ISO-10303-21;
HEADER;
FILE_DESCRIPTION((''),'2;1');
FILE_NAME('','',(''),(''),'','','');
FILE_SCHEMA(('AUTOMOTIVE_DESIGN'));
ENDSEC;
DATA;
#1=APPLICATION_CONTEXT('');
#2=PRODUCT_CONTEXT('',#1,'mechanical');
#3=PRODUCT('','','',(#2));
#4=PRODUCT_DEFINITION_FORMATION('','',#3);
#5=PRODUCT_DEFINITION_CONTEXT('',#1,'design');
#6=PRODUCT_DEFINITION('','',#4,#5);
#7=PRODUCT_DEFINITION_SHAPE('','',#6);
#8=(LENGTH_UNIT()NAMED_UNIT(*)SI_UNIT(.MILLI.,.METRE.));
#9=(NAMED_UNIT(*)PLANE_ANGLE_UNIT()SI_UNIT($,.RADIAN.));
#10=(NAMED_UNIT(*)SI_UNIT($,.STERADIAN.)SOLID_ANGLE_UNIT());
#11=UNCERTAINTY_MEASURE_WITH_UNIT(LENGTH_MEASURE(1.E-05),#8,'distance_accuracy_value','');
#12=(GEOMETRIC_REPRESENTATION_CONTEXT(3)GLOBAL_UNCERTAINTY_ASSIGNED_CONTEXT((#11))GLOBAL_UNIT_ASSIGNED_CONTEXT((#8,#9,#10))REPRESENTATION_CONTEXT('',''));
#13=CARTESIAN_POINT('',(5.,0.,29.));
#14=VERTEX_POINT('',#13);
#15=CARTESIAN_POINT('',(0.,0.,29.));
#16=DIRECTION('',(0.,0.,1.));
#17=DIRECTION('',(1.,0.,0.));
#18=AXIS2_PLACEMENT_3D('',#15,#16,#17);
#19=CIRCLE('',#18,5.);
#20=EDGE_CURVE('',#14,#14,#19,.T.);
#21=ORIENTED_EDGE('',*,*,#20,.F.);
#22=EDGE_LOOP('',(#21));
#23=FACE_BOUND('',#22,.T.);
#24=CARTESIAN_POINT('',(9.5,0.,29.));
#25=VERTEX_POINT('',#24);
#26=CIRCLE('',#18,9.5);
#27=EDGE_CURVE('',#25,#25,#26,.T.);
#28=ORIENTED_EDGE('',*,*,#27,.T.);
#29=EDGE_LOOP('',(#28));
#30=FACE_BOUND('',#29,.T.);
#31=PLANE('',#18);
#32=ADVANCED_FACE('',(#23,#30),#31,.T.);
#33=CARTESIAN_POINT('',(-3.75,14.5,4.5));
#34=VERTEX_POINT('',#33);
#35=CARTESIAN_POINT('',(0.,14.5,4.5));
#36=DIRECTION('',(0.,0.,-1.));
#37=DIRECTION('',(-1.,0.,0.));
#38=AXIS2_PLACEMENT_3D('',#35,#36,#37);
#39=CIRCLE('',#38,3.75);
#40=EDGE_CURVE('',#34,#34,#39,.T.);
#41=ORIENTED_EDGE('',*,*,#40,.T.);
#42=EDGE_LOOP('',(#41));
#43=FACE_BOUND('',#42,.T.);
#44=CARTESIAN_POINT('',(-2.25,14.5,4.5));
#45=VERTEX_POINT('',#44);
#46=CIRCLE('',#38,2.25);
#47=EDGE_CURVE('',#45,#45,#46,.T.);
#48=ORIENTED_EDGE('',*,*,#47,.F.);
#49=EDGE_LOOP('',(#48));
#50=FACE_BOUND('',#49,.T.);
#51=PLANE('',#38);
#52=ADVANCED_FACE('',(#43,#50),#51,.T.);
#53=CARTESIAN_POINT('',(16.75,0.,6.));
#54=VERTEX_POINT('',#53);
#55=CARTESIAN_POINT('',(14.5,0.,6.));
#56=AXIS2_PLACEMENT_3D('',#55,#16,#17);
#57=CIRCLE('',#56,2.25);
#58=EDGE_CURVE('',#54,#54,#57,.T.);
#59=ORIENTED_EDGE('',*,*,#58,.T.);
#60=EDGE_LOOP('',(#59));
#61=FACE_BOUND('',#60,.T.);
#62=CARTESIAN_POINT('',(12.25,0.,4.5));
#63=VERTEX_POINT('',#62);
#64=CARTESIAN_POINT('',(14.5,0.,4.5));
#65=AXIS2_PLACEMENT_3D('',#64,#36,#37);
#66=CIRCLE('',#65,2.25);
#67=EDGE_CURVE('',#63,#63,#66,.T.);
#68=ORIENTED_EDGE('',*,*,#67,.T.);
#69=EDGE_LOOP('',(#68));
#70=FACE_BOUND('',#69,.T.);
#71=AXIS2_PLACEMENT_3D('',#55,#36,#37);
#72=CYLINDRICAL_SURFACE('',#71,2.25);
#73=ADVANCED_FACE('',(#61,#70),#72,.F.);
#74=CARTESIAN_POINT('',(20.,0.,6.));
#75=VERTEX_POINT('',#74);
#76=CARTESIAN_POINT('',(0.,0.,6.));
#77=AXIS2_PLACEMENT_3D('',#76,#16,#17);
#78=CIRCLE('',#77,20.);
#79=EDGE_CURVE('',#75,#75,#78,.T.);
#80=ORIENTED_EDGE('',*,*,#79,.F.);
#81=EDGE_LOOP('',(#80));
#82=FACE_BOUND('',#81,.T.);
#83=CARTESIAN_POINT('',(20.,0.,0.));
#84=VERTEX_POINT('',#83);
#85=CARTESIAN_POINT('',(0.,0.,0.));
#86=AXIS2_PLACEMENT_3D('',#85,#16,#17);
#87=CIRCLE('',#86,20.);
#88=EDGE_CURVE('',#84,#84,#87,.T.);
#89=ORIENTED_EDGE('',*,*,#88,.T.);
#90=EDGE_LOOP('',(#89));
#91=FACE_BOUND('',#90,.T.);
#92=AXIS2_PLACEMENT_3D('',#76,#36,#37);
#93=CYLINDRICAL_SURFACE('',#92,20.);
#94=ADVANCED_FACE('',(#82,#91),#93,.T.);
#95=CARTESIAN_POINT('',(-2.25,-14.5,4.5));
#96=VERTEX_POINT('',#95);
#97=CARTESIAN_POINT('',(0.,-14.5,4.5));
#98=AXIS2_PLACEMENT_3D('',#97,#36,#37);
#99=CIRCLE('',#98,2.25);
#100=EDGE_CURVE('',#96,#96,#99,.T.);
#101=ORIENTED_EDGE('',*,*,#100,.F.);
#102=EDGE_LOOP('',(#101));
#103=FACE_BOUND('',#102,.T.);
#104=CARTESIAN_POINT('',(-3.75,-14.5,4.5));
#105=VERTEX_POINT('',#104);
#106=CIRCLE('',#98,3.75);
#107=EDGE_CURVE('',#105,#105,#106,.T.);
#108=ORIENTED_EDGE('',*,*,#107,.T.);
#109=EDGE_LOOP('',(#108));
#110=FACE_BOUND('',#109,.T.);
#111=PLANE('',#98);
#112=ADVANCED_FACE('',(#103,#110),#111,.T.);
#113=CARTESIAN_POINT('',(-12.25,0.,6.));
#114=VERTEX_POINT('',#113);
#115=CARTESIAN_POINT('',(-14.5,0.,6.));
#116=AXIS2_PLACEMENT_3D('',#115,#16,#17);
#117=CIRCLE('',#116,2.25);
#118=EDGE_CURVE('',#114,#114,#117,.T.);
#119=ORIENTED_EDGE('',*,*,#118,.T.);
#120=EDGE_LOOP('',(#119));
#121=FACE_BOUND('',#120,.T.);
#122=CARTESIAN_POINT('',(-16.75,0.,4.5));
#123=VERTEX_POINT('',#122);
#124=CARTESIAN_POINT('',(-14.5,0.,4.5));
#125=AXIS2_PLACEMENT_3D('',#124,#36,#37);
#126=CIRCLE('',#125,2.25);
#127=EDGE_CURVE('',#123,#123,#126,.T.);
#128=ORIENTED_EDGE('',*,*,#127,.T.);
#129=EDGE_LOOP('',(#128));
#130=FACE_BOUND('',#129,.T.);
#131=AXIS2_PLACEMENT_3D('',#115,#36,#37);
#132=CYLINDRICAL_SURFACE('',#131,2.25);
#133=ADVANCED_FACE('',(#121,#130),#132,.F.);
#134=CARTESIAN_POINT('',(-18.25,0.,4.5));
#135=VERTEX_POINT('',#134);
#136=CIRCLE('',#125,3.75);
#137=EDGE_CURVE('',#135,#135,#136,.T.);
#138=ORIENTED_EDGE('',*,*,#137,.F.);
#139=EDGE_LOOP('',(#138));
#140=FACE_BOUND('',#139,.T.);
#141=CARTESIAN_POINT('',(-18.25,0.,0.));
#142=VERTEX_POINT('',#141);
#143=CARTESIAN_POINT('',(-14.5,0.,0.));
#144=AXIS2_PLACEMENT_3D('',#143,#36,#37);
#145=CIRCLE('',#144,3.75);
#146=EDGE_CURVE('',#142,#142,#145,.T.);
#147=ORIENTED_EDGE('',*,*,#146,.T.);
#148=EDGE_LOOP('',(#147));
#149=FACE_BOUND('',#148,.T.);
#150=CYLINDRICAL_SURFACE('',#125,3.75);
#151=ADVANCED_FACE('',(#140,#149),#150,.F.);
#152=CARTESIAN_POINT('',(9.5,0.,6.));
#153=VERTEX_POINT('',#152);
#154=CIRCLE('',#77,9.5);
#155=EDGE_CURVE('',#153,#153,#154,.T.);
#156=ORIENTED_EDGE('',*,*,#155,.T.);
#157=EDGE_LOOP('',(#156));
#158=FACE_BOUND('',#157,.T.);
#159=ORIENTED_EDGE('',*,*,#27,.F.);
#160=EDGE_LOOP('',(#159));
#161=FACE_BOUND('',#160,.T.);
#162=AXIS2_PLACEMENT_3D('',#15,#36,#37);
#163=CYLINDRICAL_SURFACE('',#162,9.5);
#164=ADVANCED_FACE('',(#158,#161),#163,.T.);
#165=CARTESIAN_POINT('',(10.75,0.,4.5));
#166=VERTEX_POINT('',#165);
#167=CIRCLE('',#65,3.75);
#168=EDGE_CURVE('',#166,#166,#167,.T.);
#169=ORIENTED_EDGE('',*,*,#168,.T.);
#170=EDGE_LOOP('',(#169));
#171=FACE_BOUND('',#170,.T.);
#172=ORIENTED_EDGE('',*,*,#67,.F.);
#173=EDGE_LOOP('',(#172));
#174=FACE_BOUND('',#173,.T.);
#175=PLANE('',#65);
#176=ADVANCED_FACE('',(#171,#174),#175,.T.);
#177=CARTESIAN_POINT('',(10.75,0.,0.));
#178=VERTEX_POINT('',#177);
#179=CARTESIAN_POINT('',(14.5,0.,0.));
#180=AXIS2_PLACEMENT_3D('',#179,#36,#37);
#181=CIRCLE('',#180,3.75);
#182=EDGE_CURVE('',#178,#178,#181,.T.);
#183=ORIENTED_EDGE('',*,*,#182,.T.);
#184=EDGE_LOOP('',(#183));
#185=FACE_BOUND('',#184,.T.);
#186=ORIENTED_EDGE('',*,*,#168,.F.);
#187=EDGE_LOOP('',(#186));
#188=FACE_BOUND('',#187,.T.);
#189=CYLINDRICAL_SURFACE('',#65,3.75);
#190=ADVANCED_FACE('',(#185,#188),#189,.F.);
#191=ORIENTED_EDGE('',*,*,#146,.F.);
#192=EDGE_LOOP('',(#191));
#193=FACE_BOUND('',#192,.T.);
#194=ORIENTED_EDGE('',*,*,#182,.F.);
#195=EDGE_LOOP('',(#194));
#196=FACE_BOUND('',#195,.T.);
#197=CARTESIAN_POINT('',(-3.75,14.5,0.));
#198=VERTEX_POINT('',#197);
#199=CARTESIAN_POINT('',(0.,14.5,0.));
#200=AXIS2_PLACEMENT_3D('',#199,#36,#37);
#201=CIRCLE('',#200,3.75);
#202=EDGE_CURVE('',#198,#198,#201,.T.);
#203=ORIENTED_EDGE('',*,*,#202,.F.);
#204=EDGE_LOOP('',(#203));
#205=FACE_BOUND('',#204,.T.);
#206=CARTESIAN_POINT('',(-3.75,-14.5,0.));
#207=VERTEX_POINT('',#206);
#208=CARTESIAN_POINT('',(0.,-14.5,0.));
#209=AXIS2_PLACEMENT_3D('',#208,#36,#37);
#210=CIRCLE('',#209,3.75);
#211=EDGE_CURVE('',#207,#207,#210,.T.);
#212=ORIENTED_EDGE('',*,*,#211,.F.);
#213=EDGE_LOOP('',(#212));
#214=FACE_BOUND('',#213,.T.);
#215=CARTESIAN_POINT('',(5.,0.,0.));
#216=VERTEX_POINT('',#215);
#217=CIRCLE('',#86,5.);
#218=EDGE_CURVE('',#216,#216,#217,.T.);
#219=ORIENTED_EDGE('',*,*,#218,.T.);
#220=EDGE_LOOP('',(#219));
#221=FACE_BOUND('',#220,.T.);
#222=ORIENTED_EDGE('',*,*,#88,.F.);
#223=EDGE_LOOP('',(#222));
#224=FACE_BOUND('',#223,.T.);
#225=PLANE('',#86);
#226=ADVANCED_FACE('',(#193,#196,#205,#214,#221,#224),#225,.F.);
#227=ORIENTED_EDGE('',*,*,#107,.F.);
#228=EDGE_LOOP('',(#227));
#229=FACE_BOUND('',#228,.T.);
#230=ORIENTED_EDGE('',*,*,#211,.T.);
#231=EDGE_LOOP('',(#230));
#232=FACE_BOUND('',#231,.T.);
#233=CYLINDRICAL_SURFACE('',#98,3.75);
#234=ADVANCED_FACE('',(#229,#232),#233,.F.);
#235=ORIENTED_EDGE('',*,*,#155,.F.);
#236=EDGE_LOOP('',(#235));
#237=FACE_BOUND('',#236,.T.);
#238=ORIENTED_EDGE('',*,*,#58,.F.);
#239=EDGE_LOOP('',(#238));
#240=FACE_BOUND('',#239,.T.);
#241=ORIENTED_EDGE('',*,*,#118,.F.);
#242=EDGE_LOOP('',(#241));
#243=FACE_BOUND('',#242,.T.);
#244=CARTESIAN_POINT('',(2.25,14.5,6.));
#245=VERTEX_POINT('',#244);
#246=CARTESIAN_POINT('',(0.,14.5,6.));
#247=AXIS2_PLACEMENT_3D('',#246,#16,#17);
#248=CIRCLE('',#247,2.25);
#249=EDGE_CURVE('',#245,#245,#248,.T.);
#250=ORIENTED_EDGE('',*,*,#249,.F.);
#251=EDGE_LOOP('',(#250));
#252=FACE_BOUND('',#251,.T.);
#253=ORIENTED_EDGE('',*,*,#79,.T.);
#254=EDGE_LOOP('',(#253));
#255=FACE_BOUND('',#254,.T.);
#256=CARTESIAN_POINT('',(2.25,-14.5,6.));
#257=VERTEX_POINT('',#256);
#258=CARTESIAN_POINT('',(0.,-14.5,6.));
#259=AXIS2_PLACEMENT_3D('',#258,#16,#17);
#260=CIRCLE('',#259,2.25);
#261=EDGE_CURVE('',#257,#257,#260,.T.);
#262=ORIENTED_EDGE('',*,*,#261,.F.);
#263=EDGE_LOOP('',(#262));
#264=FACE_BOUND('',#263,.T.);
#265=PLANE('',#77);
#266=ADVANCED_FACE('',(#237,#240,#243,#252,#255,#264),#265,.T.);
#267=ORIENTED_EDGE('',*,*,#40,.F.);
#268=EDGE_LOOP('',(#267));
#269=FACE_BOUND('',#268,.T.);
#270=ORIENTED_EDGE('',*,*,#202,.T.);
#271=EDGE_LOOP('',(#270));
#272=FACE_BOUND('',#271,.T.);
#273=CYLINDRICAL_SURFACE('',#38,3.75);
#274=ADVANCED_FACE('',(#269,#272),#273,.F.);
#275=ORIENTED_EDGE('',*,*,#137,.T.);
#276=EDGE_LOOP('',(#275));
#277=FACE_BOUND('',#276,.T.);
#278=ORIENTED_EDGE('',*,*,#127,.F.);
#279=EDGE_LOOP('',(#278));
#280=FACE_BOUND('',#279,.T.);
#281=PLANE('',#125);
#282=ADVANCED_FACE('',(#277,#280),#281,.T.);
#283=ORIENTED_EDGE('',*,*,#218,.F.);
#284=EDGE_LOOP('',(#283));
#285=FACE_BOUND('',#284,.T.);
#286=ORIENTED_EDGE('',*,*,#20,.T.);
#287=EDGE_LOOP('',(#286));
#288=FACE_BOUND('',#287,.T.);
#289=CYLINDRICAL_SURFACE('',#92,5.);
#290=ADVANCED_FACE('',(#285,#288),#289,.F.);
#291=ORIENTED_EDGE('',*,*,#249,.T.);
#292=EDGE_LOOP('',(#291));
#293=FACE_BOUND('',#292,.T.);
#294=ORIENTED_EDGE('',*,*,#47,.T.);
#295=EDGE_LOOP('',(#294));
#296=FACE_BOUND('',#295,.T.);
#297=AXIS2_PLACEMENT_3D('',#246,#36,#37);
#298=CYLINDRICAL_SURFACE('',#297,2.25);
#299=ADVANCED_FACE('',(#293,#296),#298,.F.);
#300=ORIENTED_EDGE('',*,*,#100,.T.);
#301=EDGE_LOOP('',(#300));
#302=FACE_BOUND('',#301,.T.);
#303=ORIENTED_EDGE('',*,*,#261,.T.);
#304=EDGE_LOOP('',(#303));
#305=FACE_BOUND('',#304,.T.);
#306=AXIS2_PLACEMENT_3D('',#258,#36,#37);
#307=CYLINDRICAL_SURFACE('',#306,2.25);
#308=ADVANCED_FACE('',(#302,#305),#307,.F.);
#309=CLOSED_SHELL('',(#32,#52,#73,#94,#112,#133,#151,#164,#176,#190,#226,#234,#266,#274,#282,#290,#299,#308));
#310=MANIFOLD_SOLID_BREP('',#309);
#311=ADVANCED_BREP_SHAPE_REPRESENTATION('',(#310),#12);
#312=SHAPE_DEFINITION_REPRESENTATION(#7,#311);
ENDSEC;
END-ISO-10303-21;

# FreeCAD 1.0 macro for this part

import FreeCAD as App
import Part
import Sketcher

doc = App.newDocument("Part")
params = doc.addObject("Spreadsheet::Sheet", "Params")
for row, (alias, value) in enumerate([
    ("sketch1_diameter", "40 mm"),
    ("sketch1_diameter2", "10 mm"),
    ("sketch1_diameter3", "4.5 mm"),
    ("pad1_length", "6 mm"),
    ("sketch2_diameter", "19 mm"),
    ("sketch2_diameter2", "10 mm"),
    ("pad2_length", "23 mm"),
    ("sketch3_diameter", "7.5 mm"),
    ("pocket1_length", "4.5 mm"),
], start=1):
    params.set(f"A{row}", alias)
    params.set(f"B{row}", "=" + value)
    params.setAlias(f"B{row}", alias)

body = doc.addObject("PartDesign::Body", "Body")

# Sketch on XY plane
sketch1 = doc.addObject("Sketcher::SketchObject", "Sketch")
body.addObject(sketch1)
sketch1.AttachmentSupport = (doc.XY_Plane, [""])
sketch1.MapMode = "FlatFace"
sketch1.addGeometry(Part.Circle(App.Vector(0, 0, 0), App.Vector(0, 0, 1), 20), False)
sketch1.addGeometry(Part.Circle(App.Vector(0, -14.5, 0), App.Vector(0, 0, 1), 2.2), False)
sketch1.addGeometry(Part.Circle(App.Vector(-14.5, 0, 0), App.Vector(0, 0, 1), 2.2), False)
sketch1.addGeometry(Part.Circle(App.Vector(0, 0, 0), App.Vector(0, 0, 1), 5), False)
sketch1.addGeometry(Part.Circle(App.Vector(14.5, 0, 0), App.Vector(0, 0, 1), 2.2), False)
sketch1.addGeometry(Part.Circle(App.Vector(0, 14.5, 0), App.Vector(0, 0, 1), 2.2), False)
sketch1.addConstraint(Sketcher.Constraint("Coincident", 0, 3, -1, 1))
sketch1.addConstraint(Sketcher.Constraint("Coincident", 3, 3, -1, 1))
sketch1.addConstraint(Sketcher.Constraint("Equal", 1, 2))
sketch1.addConstraint(Sketcher.Constraint("Equal", 2, 4))
sketch1.addConstraint(Sketcher.Constraint("Equal", 4, 5))
sketch1.addConstraint(Sketcher.Constraint("Symmetric", 2, 3, 4, 3, -1, 1))
sketch1.addConstraint(Sketcher.Constraint("Symmetric", 1, 3, 5, 3, -1, 1))
sketch1.addConstraint(Sketcher.Constraint("PointOnObject", 1, 3, -2))
sketch1.addConstraint(Sketcher.Constraint("PointOnObject", 2, 3, -1))
sketch1.addConstraint(Sketcher.Constraint("Diameter", 0, 40.0))
sketch1.addConstraint(Sketcher.Constraint("Diameter", 3, 10.0))
sketch1.addConstraint(Sketcher.Constraint("Diameter", 1, 4.5))
sketch1.addConstraint(Sketcher.Constraint("DistanceX", 2, 3, 4, 3, 29.0))
sketch1.addConstraint(Sketcher.Constraint("DistanceY", 1, 3, 5, 3, 29.0))
sketch1.setExpression("Constraints[9]", "Params.sketch1_diameter")
sketch1.setExpression("Constraints[10]", "Params.sketch1_diameter2")
sketch1.setExpression("Constraints[11]", "Params.sketch1_diameter3")
pad1 = doc.addObject("PartDesign::Pad", "Pad")
body.addObject(pad1)
pad1.Profile = sketch1
pad1.setExpression("Length", "Params.pad1_length")

# Sketch on XY plane
sketch2 = doc.addObject("Sketcher::SketchObject", "Sketch001")
body.addObject(sketch2)
sketch2.AttachmentSupport = (doc.XY_Plane, [""])
sketch2.MapMode = "FlatFace"
sketch2.AttachmentOffset = App.Placement(App.Vector(0, 0, 6), App.Rotation())
sketch2.addGeometry(Part.Circle(App.Vector(0, 0, 0), App.Vector(0, 0, 1), 10), False)
sketch2.addGeometry(Part.Circle(App.Vector(0, 0, 0), App.Vector(0, 0, 1), 5), False)
sketch2.addConstraint(Sketcher.Constraint("Coincident", 0, 3, -1, 1))
sketch2.addConstraint(Sketcher.Constraint("Coincident", 1, 3, -1, 1))
sketch2.addConstraint(Sketcher.Constraint("Diameter", 0, 19.0))
sketch2.addConstraint(Sketcher.Constraint("Diameter", 1, 10.0))
sketch2.setExpression("Constraints[2]", "Params.sketch2_diameter")
sketch2.setExpression("Constraints[3]", "Params.sketch2_diameter2")
pad2 = doc.addObject("PartDesign::Pad", "Pad001")
body.addObject(pad2)
pad2.Profile = sketch2
pad2.setExpression("Length", "Params.pad2_length")

# Sketch on XY plane
sketch3 = doc.addObject("Sketcher::SketchObject", "Sketch002")
body.addObject(sketch3)
sketch3.AttachmentSupport = (doc.XY_Plane, [""])
sketch3.MapMode = "FlatFace"
sketch3.addGeometry(Part.Circle(App.Vector(0, 14.5, 0), App.Vector(0, 0, 1), 3.8), False)
sketch3.addGeometry(Part.Circle(App.Vector(-14.5, 0, 0), App.Vector(0, 0, 1), 3.8), False)
sketch3.addGeometry(Part.Circle(App.Vector(0, -14.5, 0), App.Vector(0, 0, 1), 3.8), False)
sketch3.addGeometry(Part.Circle(App.Vector(14.5, 0, 0), App.Vector(0, 0, 1), 3.8), False)
sketch3.addConstraint(Sketcher.Constraint("Equal", 0, 1))
sketch3.addConstraint(Sketcher.Constraint("Equal", 1, 2))
sketch3.addConstraint(Sketcher.Constraint("Equal", 2, 3))
sketch3.addConstraint(Sketcher.Constraint("Symmetric", 0, 3, 2, 3, -1, 1))
sketch3.addConstraint(Sketcher.Constraint("Symmetric", 1, 3, 3, 3, -1, 1))
sketch3.addConstraint(Sketcher.Constraint("PointOnObject", 0, 3, -2))
sketch3.addConstraint(Sketcher.Constraint("PointOnObject", 1, 3, -1))
sketch3.addConstraint(Sketcher.Constraint("Diameter", 0, 7.5))
sketch3.addConstraint(Sketcher.Constraint("DistanceY", 2, 3, 0, 3, 29.0))
sketch3.addConstraint(Sketcher.Constraint("DistanceX", 1, 3, 3, 3, 29.0))
sketch3.setExpression("Constraints[7]", "Params.sketch3_diameter")
pocket1 = doc.addObject("PartDesign::Pocket", "Pocket")
body.addObject(pocket1)
pocket1.Profile = sketch3
pocket1.setExpression("Length", "Params.pocket1_length")
pocket1.Reversed = True

doc.recompute()
